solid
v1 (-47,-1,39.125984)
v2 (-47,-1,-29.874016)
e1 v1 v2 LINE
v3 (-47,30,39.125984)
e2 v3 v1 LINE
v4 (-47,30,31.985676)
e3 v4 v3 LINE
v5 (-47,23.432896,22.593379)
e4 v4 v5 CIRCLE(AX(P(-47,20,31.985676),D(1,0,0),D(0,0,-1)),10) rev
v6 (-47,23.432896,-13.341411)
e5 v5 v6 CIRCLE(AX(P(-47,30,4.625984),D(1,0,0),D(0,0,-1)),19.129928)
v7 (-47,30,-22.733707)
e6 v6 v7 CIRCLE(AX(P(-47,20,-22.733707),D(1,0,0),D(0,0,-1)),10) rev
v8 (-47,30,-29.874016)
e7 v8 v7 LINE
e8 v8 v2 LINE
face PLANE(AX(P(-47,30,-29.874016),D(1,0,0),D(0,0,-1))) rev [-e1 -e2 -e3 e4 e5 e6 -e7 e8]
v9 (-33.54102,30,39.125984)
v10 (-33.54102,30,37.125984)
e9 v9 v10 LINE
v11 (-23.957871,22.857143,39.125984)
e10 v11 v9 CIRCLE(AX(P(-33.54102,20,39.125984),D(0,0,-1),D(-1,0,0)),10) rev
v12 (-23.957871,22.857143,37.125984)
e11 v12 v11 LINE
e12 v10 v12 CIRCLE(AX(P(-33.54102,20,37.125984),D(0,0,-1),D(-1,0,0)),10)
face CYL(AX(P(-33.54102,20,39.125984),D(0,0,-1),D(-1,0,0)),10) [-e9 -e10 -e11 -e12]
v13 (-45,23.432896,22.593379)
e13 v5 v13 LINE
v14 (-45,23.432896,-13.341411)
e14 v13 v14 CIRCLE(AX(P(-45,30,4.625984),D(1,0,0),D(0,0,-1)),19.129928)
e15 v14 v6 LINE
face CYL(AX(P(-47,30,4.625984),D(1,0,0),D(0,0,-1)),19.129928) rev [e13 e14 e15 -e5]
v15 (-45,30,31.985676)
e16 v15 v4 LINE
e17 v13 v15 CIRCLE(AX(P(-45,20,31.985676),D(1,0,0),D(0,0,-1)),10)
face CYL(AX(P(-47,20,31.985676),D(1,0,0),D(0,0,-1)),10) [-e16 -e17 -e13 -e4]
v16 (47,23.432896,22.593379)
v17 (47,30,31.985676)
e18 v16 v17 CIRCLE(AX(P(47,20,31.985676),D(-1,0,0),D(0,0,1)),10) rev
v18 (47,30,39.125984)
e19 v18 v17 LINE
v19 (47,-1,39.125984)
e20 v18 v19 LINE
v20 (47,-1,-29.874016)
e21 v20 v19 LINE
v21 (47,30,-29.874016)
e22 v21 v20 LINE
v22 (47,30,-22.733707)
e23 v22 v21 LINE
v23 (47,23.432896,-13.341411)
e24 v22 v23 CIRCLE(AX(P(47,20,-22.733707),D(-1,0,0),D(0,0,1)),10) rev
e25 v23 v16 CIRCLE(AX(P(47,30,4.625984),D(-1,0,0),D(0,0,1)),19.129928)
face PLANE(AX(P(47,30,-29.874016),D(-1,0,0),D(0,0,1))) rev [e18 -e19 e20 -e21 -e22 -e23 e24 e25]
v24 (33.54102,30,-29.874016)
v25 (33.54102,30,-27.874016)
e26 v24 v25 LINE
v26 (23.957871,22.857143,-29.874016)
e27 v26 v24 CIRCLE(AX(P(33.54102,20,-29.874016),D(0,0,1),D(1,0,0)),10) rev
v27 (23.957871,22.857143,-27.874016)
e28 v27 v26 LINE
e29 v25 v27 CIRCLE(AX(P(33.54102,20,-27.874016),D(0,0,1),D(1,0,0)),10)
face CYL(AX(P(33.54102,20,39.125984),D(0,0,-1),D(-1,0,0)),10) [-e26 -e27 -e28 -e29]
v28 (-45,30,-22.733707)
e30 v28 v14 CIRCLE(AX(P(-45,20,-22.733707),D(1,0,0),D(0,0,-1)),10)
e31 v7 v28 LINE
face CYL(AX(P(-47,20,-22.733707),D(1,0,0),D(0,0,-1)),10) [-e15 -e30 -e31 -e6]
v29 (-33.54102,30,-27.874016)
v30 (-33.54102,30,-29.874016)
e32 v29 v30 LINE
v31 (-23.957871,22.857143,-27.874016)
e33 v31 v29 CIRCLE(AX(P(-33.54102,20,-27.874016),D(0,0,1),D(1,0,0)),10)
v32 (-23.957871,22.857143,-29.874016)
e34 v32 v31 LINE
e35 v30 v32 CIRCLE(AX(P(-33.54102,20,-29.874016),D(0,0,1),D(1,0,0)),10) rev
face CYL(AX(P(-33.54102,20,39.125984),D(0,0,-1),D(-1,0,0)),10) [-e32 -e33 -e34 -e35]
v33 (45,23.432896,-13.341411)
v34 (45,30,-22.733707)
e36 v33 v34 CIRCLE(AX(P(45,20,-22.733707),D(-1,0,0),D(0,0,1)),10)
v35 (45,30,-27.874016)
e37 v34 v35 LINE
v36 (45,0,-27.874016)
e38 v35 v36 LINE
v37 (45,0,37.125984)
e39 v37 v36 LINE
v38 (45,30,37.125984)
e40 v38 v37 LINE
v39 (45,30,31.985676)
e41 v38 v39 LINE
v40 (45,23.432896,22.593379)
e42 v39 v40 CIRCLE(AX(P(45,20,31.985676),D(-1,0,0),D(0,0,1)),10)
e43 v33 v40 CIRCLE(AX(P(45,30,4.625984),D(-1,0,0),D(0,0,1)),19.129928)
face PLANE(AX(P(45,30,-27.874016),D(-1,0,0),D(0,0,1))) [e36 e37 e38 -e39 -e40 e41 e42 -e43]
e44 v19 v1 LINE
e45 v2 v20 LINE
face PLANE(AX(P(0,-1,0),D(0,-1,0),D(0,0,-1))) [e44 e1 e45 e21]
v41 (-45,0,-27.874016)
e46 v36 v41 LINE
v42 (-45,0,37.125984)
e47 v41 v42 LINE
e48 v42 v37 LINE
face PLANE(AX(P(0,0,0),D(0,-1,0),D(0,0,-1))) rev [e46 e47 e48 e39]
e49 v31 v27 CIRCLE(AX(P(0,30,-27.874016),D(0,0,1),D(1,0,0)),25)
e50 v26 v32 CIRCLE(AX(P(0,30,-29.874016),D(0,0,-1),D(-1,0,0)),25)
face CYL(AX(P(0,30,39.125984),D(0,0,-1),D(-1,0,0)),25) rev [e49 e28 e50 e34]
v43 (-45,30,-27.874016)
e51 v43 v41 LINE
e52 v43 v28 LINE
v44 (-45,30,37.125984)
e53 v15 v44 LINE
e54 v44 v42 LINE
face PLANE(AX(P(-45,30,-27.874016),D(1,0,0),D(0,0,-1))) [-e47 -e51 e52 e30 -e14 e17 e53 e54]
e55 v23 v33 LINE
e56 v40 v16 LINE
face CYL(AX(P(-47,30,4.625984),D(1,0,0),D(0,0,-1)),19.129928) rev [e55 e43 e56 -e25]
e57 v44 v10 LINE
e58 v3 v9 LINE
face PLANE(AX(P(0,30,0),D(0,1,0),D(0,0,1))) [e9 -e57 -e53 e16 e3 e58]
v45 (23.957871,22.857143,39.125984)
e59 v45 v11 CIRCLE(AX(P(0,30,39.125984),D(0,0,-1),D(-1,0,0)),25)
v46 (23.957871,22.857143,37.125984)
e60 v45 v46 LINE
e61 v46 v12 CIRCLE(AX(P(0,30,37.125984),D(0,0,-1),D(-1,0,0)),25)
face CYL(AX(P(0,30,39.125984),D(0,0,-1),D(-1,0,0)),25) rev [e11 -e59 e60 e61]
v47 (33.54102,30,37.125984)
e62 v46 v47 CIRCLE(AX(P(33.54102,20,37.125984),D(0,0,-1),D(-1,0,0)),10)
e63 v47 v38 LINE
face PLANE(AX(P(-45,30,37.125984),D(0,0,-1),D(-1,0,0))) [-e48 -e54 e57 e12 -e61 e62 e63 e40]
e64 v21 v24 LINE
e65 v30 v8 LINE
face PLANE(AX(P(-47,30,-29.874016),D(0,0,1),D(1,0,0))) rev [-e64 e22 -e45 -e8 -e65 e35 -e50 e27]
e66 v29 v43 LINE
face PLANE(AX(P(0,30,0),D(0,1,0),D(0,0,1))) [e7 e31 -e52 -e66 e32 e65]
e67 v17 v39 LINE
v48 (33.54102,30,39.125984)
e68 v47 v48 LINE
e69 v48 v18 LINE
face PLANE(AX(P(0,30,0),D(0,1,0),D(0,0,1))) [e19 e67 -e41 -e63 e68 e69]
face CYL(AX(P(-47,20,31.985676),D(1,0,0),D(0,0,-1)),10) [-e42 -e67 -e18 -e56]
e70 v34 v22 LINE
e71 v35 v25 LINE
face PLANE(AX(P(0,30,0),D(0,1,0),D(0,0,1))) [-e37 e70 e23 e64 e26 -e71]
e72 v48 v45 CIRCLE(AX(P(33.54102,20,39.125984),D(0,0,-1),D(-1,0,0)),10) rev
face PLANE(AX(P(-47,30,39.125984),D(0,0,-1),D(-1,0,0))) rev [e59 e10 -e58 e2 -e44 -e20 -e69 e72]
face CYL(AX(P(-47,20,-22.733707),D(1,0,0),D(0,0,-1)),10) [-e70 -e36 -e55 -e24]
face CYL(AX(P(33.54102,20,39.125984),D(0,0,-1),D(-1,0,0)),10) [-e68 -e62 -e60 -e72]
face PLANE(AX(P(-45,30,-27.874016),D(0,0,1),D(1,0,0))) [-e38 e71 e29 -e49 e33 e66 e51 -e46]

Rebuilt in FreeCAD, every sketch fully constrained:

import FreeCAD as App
import Part
import Sketcher
from FreeCAD import Vector
Q = App.Units.Quantity


def edges_at(feature, points):
    """Names of the edges that pass closest to the given points."""
    edges = feature.Shape.Edges
    near = lambda p: min(range(len(edges)), key=lambda i: edges[i].distToShape(Part.Vertex(*p))[0])
    return sorted({f"Edge{near(p) + 1}" for p in points})

doc = App.newDocument("Part")
body = doc.addObject("PartDesign::Body", "Body")

# Sketch on XZ plane
sketch1 = body.newObject("Sketcher::SketchObject", "Sketch")
sketch1.AttachmentSupport = (doc.getObject("XZ_Plane"), [""])
sketch1.MapMode = "FlatFace"
sketch1.addGeometry([
    Part.LineSegment(Vector(-47, -30, 0), Vector(-47, 39, 0)),  # 0
    Part.LineSegment(Vector(-47, 39, 0), Vector(47, 39, 0)),  # 1
    Part.LineSegment(Vector(47, 39, 0), Vector(47, -30, 0)),  # 2
    Part.LineSegment(Vector(47, -30, 0), Vector(-47, -30, 0)),  # 3
    Part.LineSegment(Vector(45, 37, 0), Vector(-45, 37, 0)),  # 4
    Part.LineSegment(Vector(-45, 37, 0), Vector(-45, -28, 0)),  # 5
    Part.LineSegment(Vector(-45, -28, 0), Vector(45, -28, 0)),  # 6
    Part.LineSegment(Vector(45, -28, 0), Vector(45, 37, 0)),  # 7
], False)
sketch1.addConstraint([
    Sketcher.Constraint("Coincident", 0, 2, 1, 1),
    Sketcher.Constraint("Coincident", 1, 2, 2, 1),
    Sketcher.Constraint("Coincident", 2, 2, 3, 1),
    Sketcher.Constraint("Coincident", 3, 2, 0, 1),
    Sketcher.Constraint("Coincident", 4, 2, 5, 1),
    Sketcher.Constraint("Coincident", 5, 2, 6, 1),
    Sketcher.Constraint("Coincident", 6, 2, 7, 1),
    Sketcher.Constraint("Coincident", 7, 2, 4, 1),
    Sketcher.Constraint("Vertical", 0),
    Sketcher.Constraint("Horizontal", 1),
    Sketcher.Constraint("Vertical", 2),
    Sketcher.Constraint("Horizontal", 3),
    Sketcher.Constraint("Horizontal", 4),
    Sketcher.Constraint("Vertical", 5),
    Sketcher.Constraint("Horizontal", 6),
    Sketcher.Constraint("Vertical", 7),
    Sketcher.Constraint("DistanceX", 1, 1, 1, 2, Q("94 mm")),
    Sketcher.Constraint("DistanceX", 4, 2, 4, 1, Q("90 mm")),
    Sketcher.Constraint("DistanceY", 0, 1, 0, 2, Q("69 mm")),
    Sketcher.Constraint("DistanceY", 5, 2, 5, 1, Q("65 mm")),
    Sketcher.Constraint("DistanceX", 0, 2, -1, 1, Q("47 mm")),
    Sketcher.Constraint("DistanceX", 4, 2, -1, 1, Q("45 mm")),
    Sketcher.Constraint("DistanceY", 4, 2, 0, 2, Q("2 mm")),
    Sketcher.Constraint("DistanceY", -1, 1, 0, 2, Q("39.125984 mm")),
])
pad1 = body.newObject("PartDesign::Pad", "Pad")
pad1.Profile = sketch1
pad1.Length = 30
pad1.Reversed = True

# Sketch on XZ plane
sketch2 = body.newObject("Sketcher::SketchObject", "Sketch001")
sketch2.AttachmentSupport = (doc.getObject("XZ_Plane"), [""])
sketch2.MapMode = "FlatFace"
sketch2.addGeometry([
    Part.LineSegment(Vector(-47, 39, 0), Vector(-47, -30, 0)),
    Part.LineSegment(Vector(-47, -30, 0), Vector(47, -30, 0)),
    Part.LineSegment(Vector(47, -30, 0), Vector(47, 39, 0)),
    Part.LineSegment(Vector(47, 39, 0), Vector(-47, 39, 0)),
], False)
sketch2.addConstraint([
    Sketcher.Constraint("Coincident", 0, 2, 1, 1),
    Sketcher.Constraint("Coincident", 1, 2, 2, 1),
    Sketcher.Constraint("Coincident", 2, 2, 3, 1),
    Sketcher.Constraint("Coincident", 3, 2, 0, 1),
    Sketcher.Constraint("Vertical", 0),
    Sketcher.Constraint("Horizontal", 1),
    Sketcher.Constraint("Vertical", 2),
    Sketcher.Constraint("Horizontal", 3),
    Sketcher.Constraint("DistanceX", 1, 1, 1, 2, Q("94 mm")),
    Sketcher.Constraint("DistanceY", 0, 2, 0, 1, Q("69 mm")),
    Sketcher.Constraint("DistanceX", 0, 2, -1, 1, Q("47 mm")),
    Sketcher.Constraint("DistanceY", 0, 2, -1, 1, Q("29.874016 mm")),
])
pad2 = body.newObject("PartDesign::Pad", "Pad001")
pad2.Profile = sketch2
pad2.Length = 1

# Sketch on YZ plane
sketch3 = body.newObject("Sketcher::SketchObject", "Sketch002")
sketch3.AttachmentSupport = (doc.getObject("YZ_Plane"), [""])
sketch3.MapMode = "FlatFace"
sketch3.AttachmentOffset = App.Placement(Vector(0, 0, 47), App.Rotation())
sketch3.addGeometry(Part.Circle(Vector(30, 5, 0), Vector(0, 0, 1), 19), False)
sketch3.addConstraint([
    Sketcher.Constraint("DistanceX", -1, 1, 0, 3, Q("30 mm")),
    Sketcher.Constraint("Diameter", 0, Q("38.259856 mm")),
    Sketcher.Constraint("DistanceY", -1, 1, 0, 3, Q("4.625984 mm")),
])
pocket1 = body.newObject("PartDesign::Pocket", "Pocket")
pocket1.Profile = sketch3
pocket1.Type = "ThroughAll"
pocket1.Midplane = True
doc.recompute()

fillet = body.newObject("PartDesign::Fillet", "Fillet")
fillet.Base = (pocket1, edges_at(pocket1, [
    (46, 30, -14.504),
    (46, 30, 23.756),
    (-46, 30, 23.756),
    (-46, 30, -14.504),
]))
fillet.Radius = 10

# Sketch on XY plane
sketch4 = body.newObject("Sketcher::SketchObject", "Sketch003")
sketch4.AttachmentSupport = (doc.getObject("XY_Plane"), [""])
sketch4.MapMode = "FlatFace"
sketch4.AttachmentOffset = App.Placement(Vector(0, 0, -29.874016), App.Rotation())
sketch4.addGeometry(Part.Circle(Vector(0, 30, 0), Vector(0, 0, 1), 25), False)
sketch4.addConstraint([
    Sketcher.Constraint("PointOnObject", 0, 3, -2),
    Sketcher.Constraint("Diameter", 0, Q("50 mm")),
    Sketcher.Constraint("DistanceY", -1, 1, 0, 3, Q("30 mm")),
])
pocket2 = body.newObject("PartDesign::Pocket", "Pocket001")
pocket2.Profile = sketch4
pocket2.Type = "ThroughAll"
pocket2.Midplane = True
doc.recompute()

fillet2 = body.newObject("PartDesign::Fillet", "Fillet001")
fillet2.Base = (pocket2, edges_at(pocket2, [
    (25, 30, -28.874),
    (-25, 30, -28.874),
    (25, 30, 38.126),
    (-25, 30, 38.126),
]))
fillet2.Radius = 10

doc.recompute()
